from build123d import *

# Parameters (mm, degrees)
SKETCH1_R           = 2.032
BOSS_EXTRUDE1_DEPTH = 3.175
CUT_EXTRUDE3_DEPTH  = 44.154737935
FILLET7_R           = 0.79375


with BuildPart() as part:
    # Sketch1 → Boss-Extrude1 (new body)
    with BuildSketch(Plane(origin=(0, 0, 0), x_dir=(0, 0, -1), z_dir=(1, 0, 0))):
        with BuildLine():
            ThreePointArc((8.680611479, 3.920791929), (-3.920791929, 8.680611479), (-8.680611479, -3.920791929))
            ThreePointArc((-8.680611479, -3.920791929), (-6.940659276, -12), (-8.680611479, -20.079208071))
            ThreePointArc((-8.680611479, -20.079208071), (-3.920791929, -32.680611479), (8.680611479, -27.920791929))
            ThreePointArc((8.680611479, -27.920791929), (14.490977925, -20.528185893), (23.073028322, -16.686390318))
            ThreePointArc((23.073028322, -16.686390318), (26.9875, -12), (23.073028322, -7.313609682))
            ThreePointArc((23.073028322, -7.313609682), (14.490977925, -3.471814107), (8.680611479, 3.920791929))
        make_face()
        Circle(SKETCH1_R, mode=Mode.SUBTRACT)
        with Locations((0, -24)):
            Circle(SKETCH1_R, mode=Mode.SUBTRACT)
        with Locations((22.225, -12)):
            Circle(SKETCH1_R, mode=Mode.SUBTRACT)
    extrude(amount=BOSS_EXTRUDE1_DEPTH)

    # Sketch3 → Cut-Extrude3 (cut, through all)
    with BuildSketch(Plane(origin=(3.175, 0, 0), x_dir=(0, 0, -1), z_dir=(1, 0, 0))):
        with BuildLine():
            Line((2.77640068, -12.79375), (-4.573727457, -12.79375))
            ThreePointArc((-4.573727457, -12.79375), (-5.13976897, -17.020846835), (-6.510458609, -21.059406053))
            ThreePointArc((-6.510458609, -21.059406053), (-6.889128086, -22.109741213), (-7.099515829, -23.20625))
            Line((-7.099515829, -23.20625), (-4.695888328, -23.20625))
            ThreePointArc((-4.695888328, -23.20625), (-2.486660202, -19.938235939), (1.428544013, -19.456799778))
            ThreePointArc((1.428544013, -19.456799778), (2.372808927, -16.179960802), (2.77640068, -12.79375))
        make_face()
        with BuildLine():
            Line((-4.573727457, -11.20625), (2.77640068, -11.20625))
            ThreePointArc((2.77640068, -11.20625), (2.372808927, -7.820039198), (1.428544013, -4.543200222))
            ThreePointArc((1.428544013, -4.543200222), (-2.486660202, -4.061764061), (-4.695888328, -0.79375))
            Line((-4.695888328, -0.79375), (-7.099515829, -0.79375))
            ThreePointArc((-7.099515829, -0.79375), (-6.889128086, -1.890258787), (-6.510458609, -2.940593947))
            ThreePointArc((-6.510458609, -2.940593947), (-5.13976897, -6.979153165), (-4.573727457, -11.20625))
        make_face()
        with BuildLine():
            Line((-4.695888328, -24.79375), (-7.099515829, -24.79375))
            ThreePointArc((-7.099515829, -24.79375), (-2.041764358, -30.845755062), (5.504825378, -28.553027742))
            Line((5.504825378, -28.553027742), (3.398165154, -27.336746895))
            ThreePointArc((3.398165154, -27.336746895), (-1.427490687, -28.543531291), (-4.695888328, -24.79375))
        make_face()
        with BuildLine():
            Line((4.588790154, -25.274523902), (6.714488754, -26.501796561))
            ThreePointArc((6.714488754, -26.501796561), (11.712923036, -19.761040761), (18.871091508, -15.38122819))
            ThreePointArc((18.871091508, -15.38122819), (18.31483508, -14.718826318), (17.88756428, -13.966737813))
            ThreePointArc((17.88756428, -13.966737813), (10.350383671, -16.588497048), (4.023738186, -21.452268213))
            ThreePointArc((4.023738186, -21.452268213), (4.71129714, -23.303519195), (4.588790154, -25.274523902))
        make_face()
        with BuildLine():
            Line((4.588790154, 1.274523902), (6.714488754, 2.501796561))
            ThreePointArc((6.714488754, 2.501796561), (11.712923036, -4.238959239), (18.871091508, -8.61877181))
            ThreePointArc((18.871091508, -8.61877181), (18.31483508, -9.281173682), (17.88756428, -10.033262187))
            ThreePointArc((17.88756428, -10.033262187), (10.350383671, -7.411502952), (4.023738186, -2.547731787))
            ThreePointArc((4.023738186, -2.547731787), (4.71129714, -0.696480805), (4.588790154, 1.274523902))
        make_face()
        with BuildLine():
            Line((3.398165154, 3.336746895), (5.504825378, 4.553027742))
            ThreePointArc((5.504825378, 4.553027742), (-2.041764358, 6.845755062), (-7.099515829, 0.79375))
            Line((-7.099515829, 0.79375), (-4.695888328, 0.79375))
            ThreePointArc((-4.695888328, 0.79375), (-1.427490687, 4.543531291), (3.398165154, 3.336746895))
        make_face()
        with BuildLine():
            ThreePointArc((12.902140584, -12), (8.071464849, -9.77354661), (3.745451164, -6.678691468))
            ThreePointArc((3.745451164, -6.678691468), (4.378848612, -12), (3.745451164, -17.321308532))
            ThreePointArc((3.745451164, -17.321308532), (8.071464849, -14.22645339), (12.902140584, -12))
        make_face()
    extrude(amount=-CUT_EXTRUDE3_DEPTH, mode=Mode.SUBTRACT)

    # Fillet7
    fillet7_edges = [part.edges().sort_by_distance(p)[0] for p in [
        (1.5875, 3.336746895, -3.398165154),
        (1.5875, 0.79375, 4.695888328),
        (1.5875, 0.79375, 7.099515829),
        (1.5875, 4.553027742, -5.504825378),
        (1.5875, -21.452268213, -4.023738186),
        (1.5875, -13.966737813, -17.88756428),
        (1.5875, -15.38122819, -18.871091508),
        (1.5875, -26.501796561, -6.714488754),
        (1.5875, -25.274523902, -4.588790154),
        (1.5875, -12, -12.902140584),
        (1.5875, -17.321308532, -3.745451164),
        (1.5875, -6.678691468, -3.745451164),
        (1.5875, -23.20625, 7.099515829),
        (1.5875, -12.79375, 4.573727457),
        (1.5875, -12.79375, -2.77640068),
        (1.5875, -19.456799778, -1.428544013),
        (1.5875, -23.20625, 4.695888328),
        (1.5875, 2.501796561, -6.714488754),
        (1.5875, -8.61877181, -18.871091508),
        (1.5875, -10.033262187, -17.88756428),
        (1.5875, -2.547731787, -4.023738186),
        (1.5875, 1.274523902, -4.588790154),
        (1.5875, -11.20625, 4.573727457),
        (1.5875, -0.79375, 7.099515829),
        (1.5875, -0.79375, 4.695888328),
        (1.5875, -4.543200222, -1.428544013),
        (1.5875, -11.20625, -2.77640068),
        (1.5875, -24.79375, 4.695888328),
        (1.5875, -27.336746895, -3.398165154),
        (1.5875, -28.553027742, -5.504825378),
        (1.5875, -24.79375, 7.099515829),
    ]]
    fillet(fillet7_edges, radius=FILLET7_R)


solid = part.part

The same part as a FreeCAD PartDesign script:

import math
import FreeCAD as App
import Part
import Sketcher

V = App.Vector
Q = App.Units.Quantity


def edges_at(feature, points):
    """Names of the edges that pass closest to the given points."""
    edges = feature.Shape.Edges
    near = lambda p: min(range(len(edges)), key=lambda i: edges[i].distToShape(Part.Vertex(*p))[0])
    return sorted({f"Edge{near(p) + 1}" for p in points})

doc = App.newDocument("Part")
body = doc.addObject("PartDesign::Body", "Body")

# Sketch on YZ plane
sketch1 = body.newObject("Sketcher::SketchObject", "Sketch")
sketch1.AttachmentSupport = (doc.getObject("YZ_Plane"), [""])
sketch1.MapMode = "FlatFace"
sketch1.addGeometry([
    Part.ArcOfCircle(Part.Circle(V(0, 0, 0), V(0, 0, 1), 9.5), math.radians(-66), math.radians(114)),  # 0
    Part.ArcOfCircle(Part.Circle(V(-12, 26.6, 0), V(0, 0, 1), 19.6), math.radians(-114), math.radians(-66)),  # 1
    Part.ArcOfCircle(Part.Circle(V(-24, 0, 0), V(0, 0, 1), 9.5), math.radians(66), math.radians(246)),  # 2
    Part.ArcOfCircle(Part.Circle(V(-36, -26.6, 0), V(0, 0, 1), 19.6), math.radians(10), math.radians(66)),  # 3
    Part.ArcOfCircle(Part.Circle(V(-12, -22.2, 0), V(0, 0, 1), 4.8), math.radians(-170), math.radians(-10)),  # 4
    Part.ArcOfCircle(Part.Circle(V(12, -26.6, 0), V(0, 0, 1), 19.6), math.radians(114), math.radians(170)),  # 5
    Part.Circle(V(-24, 0, 0), V(0, 0, 1), 2),  # 6
    Part.Circle(V(0, 0, 0), V(0, 0, 1), 2),  # 7
    Part.Circle(V(-12, -22.2, 0), V(0, 0, 1), 2),  # 8
], False)
sketch1.addConstraint([
    Sketcher.Constraint("Tangent", 0, 2, 1, 2),
    Sketcher.Constraint("Tangent", 1, 1, 2, 1),
    Sketcher.Constraint("Tangent", 2, 2, 3, 2),
    Sketcher.Constraint("Tangent", 3, 1, 4, 1),
    Sketcher.Constraint("Tangent", 4, 2, 5, 2),
    Sketcher.Constraint("Tangent", 5, 1, 0, 1),
    Sketcher.Constraint("Coincident", 0, 3, -1, 1),
    Sketcher.Constraint("Coincident", 7, 3, -1, 1),
    Sketcher.Constraint("Coincident", 6, 3, 2, 3),
    Sketcher.Constraint("Coincident", 8, 3, 4, 3),
    Sketcher.Constraint("Equal", 0, 2),
    Sketcher.Constraint("Equal", 1, 3),
    Sketcher.Constraint("Equal", 3, 5),
    Sketcher.Constraint("Equal", 6, 7),
    Sketcher.Constraint("Equal", 7, 8),
    Sketcher.Constraint("PointOnObject", 2, 3, -1),
    Sketcher.Constraint("Horizontal", 3, 3, 5, 3),
    Sketcher.Constraint("Diameter", 6, Q("0.16 in")),
    Sketcher.Constraint("Radius", 0, Q("0.375 in")),
    Sketcher.Constraint("Radius", 4, Q("0.1875 in")),
    Sketcher.Constraint("DistanceY", 4, 3, -1, 1, Q("0.875 in")),
    Sketcher.Constraint("Radius", 1, 19.627274),
    Sketcher.Constraint("DistanceX", 1, 3, -1, 1, 12.0),
])
pad1 = body.newObject("PartDesign::Pad", "Pad")
pad1.Profile = sketch1
pad1.Length = Q("0.125 in")

# Sketch on YZ plane
sketch2 = body.newObject("Sketcher::SketchObject", "Sketch001")
sketch2.AttachmentSupport = (doc.getObject("YZ_Plane"), [""])
sketch2.MapMode = "FlatFace"
sketch2.AttachmentOffset = App.Placement(V(0, 0, 0.125 * 25.4), App.Rotation())
sketch2.addGeometry([
    Part.LineSegment(V(-12.8, -2.8, 0), V(-12.8, 4.6, 0)),  # 0
    Part.ArcOfCircle(Part.Circle(V(-12, 26.6, 0), V(0, 0, 1), 22), math.radians(-114), math.radians(-92)),  # 1
    Part.ArcOfCircle(Part.Circle(V(-24, 0, 0), V(0, 0, 1), 7.1), math.radians(65.69), math.radians(83.62)),  # 2
    Part.LineSegment(V(-23.2, 7.1, 0), V(-23.2, 4.7, 0)),  # 3
    Part.ArcOfCircle(Part.Circle(V(-24, 0, 0), V(0, 0, 1), 4.8), math.radians(-17), math.radians(80)),  # 4
    Part.ArcOfCircle(Part.Circle(V(-12, 18.3, 0), V(0, 0, 1), 21.1), math.radians(-110.71), math.radians(-92.16)),  # 5
    Part.LineSegment(V(-11.2, 4.6, 0), V(-11.2, -2.8, 0)),  # 6
    Part.ArcOfCircle(Part.Circle(V(-12, 18.3, 0), V(0, 0, 1), 21.1), math.radians(-87.84), math.radians(-69.29)),  # 7
    Part.ArcOfCircle(Part.Circle(V(0, 0, 0), V(0, 0, 1), 4.8), math.radians(100), math.radians(197)),  # 8
    Part.LineSegment(V(-0.8, 4.7, 0), V(-0.8, 7.1, 0)),  # 9
    Part.ArcOfCircle(Part.Circle(V(0, 0, 0), V(0, 0, 1), 7.1), math.radians(96.38), math.radians(114.31)),  # 10
    Part.ArcOfCircle(Part.Circle(V(-12, 26.6, 0), V(0, 0, 1), 22), math.radians(-88), math.radians(-66)),  # 11
    Part.LineSegment(V(-24.8, 4.7, 0), V(-24.8, 7.1, 0)),  # 12
    Part.ArcOfCircle(Part.Circle(V(-24, 0, 0), V(0, 0, 1), 7.1), math.radians(96), math.radians(230)),  # 13
    Part.LineSegment(V(-28.6, -5.5, 0), V(-27.3, -3.4, 0)),  # 14
    Part.ArcOfCircle(Part.Circle(V(-24, 0, 0), V(0, 0, 1), 4.8), math.radians(100), math.radians(226)),  # 15
    Part.LineSegment(V(-25.3, -4.6, 0), V(-26.5, -6.7, 0)),  # 16
    Part.ArcOfCircle(Part.Circle(V(-36, -26.6, 0), V(0, 0, 1), 22), math.radians(20), math.radians(64)),  # 17
    Part.ArcOfCircle(Part.Circle(V(-12, -22.2, 0), V(0, 0, 1), 4.8), math.radians(114), math.radians(135)),  # 18
    Part.ArcOfCircle(Part.Circle(V(-38.6, -22.2, 0), V(0, 0, 1), 25), math.radians(10), math.radians(47)),  # 19
    Part.ArcOfCircle(Part.Circle(V(-24, 0, 0), V(0, 0, 1), 4.8), math.radians(-106), math.radians(-58)),  # 20
    Part.LineSegment(V(2.5, -6.7, 0), V(1.3, -4.6, 0)),  # 21
    Part.ArcOfCircle(Part.Circle(V(0, 0, 0), V(0, 0, 1), 4.8), math.radians(-122), math.radians(-74)),  # 22
    Part.ArcOfCircle(Part.Circle(V(14.6, -22.2, 0), V(0, 0, 1), 25), math.radians(133), math.radians(170)),  # 23
    Part.ArcOfCircle(Part.Circle(V(-12, -22.2, 0), V(0, 0, 1), 4.8), math.radians(45), math.radians(66)),  # 24
    Part.ArcOfCircle(Part.Circle(V(12, -26.6, 0), V(0, 0, 1), 22), math.radians(116), math.radians(160)),  # 25
    Part.LineSegment(V(3.3, -3.4, 0), V(4.6, -5.5, 0)),  # 26
    Part.ArcOfCircle(Part.Circle(V(0, 0, 0), V(0, 0, 1), 7.1), math.radians(-50), math.radians(84)),  # 27
    Part.LineSegment(V(0.8, 7.1, 0), V(0.8, 4.7, 0)),  # 28
    Part.ArcOfCircle(Part.Circle(V(0, 0, 0), V(0, 0, 1), 4.8), math.radians(-46), math.radians(80)),  # 29
    Part.ArcOfCircle(Part.Circle(V(14.6, -22.2, 0), V(0, 0, 1), 28.2), math.radians(139), math.radians(161)),  # 30
    Part.ArcOfCircle(Part.Circle(V(-12, 18.3, 0), V(0, 0, 1), 22.7), math.radians(-104), math.radians(-76)),  # 31
    Part.ArcOfCircle(Part.Circle(V(-38.6, -22.2, 0), V(0, 0, 1), 28.2), math.radians(19), math.radians(41)),  # 32
], False)
sketch2.addConstraint([
    Sketcher.Constraint("Coincident", 0, 2, 1, 2),
    Sketcher.Constraint("Tangent", 1, 1, 2, 1),
    Sketcher.Constraint("Coincident", 2, 2, 3, 1),
    Sketcher.Constraint("Coincident", 3, 2, 4, 2),
    Sketcher.Constraint("Coincident", 4, 1, 5, 1),
    Sketcher.Constraint("Coincident", 5, 2, 0, 1),
    Sketcher.Constraint("Coincident", 6, 2, 7, 1),
    Sketcher.Constraint("Coincident", 7, 2, 8, 2),
    Sketcher.Constraint("Coincident", 8, 1, 9, 1),
    Sketcher.Constraint("Coincident", 9, 2, 10, 1),
    Sketcher.Constraint("Tangent", 10, 2, 11, 2),
    Sketcher.Constraint("Coincident", 11, 1, 6, 1),
    Sketcher.Constraint("Coincident", 12, 2, 13, 1),
    Sketcher.Constraint("Coincident", 13, 2, 14, 1),
    Sketcher.Constraint("Coincident", 14, 2, 15, 2),
    Sketcher.Constraint("Coincident", 15, 1, 12, 1),
    Sketcher.Constraint("Coincident", 16, 2, 17, 2),
    Sketcher.Constraint("Coincident", 17, 1, 18, 2),
    Sketcher.Constraint("Coincident", 18, 1, 19, 1),
    Sketcher.Constraint("Coincident", 19, 2, 20, 2),
    Sketcher.Constraint("Coincident", 20, 1, 16, 1),
    Sketcher.Constraint("Coincident", 21, 2, 22, 2),
    Sketcher.Constraint("Coincident", 22, 1, 23, 1),
    Sketcher.Constraint("Coincident", 23, 2, 24, 2),
    Sketcher.Constraint("Coincident", 24, 1, 25, 2),
    Sketcher.Constraint("Coincident", 25, 1, 21, 1),
    Sketcher.Constraint("Coincident", 26, 2, 27, 1),
    Sketcher.Constraint("Coincident", 27, 2, 28, 1),
    Sketcher.Constraint("Coincident", 28, 2, 29, 2),
    Sketcher.Constraint("Coincident", 29, 1, 26, 1),
    Sketcher.Constraint("Coincident", 30, 1, 31, 2),
    Sketcher.Constraint("Coincident", 31, 1, 32, 2),
    Sketcher.Constraint("Coincident", 32, 1, 30, 2),
    Sketcher.Constraint("Vertical", 0),
    Sketcher.Constraint("Vertical", 3),
    Sketcher.Constraint("Vertical", 6),
    Sketcher.Constraint("Vertical", 9),
    Sketcher.Constraint("Vertical", 12),
    Sketcher.Constraint("Vertical", 28),
    Sketcher.Constraint("Coincident", 8, 3, -1, 1),
    Sketcher.Constraint("Coincident", 10, 3, -1, 1),
    Sketcher.Constraint("Coincident", 22, 3, -1, 1),
    Sketcher.Constraint("Coincident", 27, 3, -1, 1),
    Sketcher.Constraint("Coincident", 29, 3, -1, 1),
    Sketcher.Constraint("Coincident", 4, 3, 2, 3),
    Sketcher.Constraint("Coincident", 7, 3, 5, 3),
    Sketcher.Constraint("Coincident", 11, 3, 1, 3),
    Sketcher.Constraint("Coincident", 13, 3, 2, 3),
    Sketcher.Constraint("Coincident", 15, 3, 2, 3),
    Sketcher.Constraint("Coincident", 20, 3, 2, 3),
    Sketcher.Constraint("Coincident", 24, 3, 18, 3),
    Sketcher.Constraint("Coincident", 30, 3, 23, 3),
    Sketcher.Constraint("Coincident", 31, 3, 5, 3),
    Sketcher.Constraint("Coincident", 32, 3, 19, 3),
    Sketcher.Constraint("Equal", 5, 7),
    Sketcher.Constraint("Equal", 4, 8),
    Sketcher.Constraint("Equal", 2, 10),
    Sketcher.Constraint("Equal", 1, 11),
    Sketcher.Constraint("Equal", 10, 13),
    Sketcher.Constraint("Equal", 8, 15),
    Sketcher.Constraint("Equal", 11, 17),
    Sketcher.Constraint("Equal", 15, 18),
    Sketcher.Constraint("Equal", 18, 20),
    Sketcher.Constraint("Equal", 20, 22),
    Sketcher.Constraint("Equal", 19, 23),
    Sketcher.Constraint("Equal", 22, 24),
    Sketcher.Constraint("Equal", 17, 25),
    Sketcher.Constraint("Equal", 13, 27),
    Sketcher.Constraint("Equal", 24, 29),
    Sketcher.Constraint("Equal", 30, 32),
    Sketcher.Constraint("Symmetric", 1, 3, 25, 3, -1, 1),
    Sketcher.Constraint("PointOnObject", 2, 3, -1),
    Sketcher.Constraint("Parallel", 14, 16),
    Sketcher.Constraint("Parallel", 21, 26),
    Sketcher.Constraint("Horizontal", 18, 3, 19, 3),
    Sketcher.Constraint("Horizontal", 19, 3, 23, 3),
    Sketcher.Constraint("Horizontal", 17, 3, 25, 3),
    Sketcher.Constraint("Horizontal", 5, 2, 6, 2),
    Sketcher.Constraint("Horizontal", 4, 1, 7, 2),
    Sketcher.Constraint("Horizontal", 3, 2, 8, 1),
    Sketcher.Constraint("Horizontal", 9, 2, 12, 2),
    Sketcher.Constraint("Horizontal", 20, 1, 21, 2),
    Sketcher.Constraint("Horizontal", 19, 2, 22, 1),
    Sketcher.Constraint("Horizontal", 18, 1, 23, 2),
    Sketcher.Constraint("Horizontal", 17, 1, 24, 1),
    Sketcher.Constraint("Horizontal", 16, 2, 25, 1),
    Sketcher.Constraint("Horizontal", 13, 2, 26, 2),
    Sketcher.Constraint("Horizontal", 12, 2, 27, 2),
    Sketcher.Constraint("Angle", 14, Q("60 deg")),
    Sketcher.Constraint("Radius", 2, Q("0.28125 in")),
    Sketcher.Constraint("Radius", 4, Q("0.1875 in")),
    Sketcher.Constraint("DistanceY", 18, 3, -1, 1, Q("0.875 in")),
    Sketcher.Constraint("DistanceX", 8, 1, -1, 1, Q("0.03125 in")),
    Sketcher.Constraint("Radius", 5, 21.081929),
    Sketcher.Constraint("Radius", 31, 22.669429),
    Sketcher.Constraint("DistanceX", 5, 2, 6, 2, Q("0.0625 in")),
    Sketcher.Constraint("DistanceY", 20, 1, 14, 2, Q("0.046875 in")),
    Sketcher.Constraint("Radius", 1, 22.008524),
    Sketcher.Constraint("Radius", 19, 24.993776),
    Sketcher.Constraint("Radius", 30, 28.168776),
    Sketcher.Constraint("DistanceY", 0, 1, 0, 2, 7.350128),
    Sketcher.Constraint("DistanceX", 1, 3, -1, 1, 12.0),
    Sketcher.Constraint("DistanceY", 16, 2, 20, 1, 2.125699),
    Sketcher.Constraint("DistanceX", 19, 2, -1, 1, 21.452268),
])
pocket1 = body.newObject("PartDesign::Pocket", "Pocket")
pocket1.Profile = sketch2
pocket1.Type = "ThroughAll"
doc.recompute()

fillet = body.newObject("PartDesign::Fillet", "Fillet")
fillet.Base = (pocket1, edges_at(pocket1, [
    (1.587, 3.337, -3.398),
    (1.587, 0.794, 4.696),
    (1.587, 0.794, 7.1),
    (1.587, 4.553, -5.505),
    (1.587, -21.452, -4.024),
    (1.587, -13.967, -17.888),
    (1.587, -15.381, -18.871),
    (1.587, -26.502, -6.714),
    (1.587, -25.275, -4.589),
    (1.587, -12, -12.902),
    (1.587, -17.321, -3.745),
    (1.587, -6.679, -3.745),
    (1.587, -23.206, 7.1),
    (1.587, -12.794, 4.574),
    (1.587, -12.794, -2.776),
    (1.587, -19.457, -1.429),
    (1.587, -23.206, 4.696),
    (1.587, 2.502, -6.714),
    (1.587, -8.619, -18.871),
    (1.587, -10.033, -17.888),
    (1.587, -2.548, -4.024),
    (1.587, 1.275, -4.589),
    (1.587, -11.206, 4.574),
    (1.587, -0.794, 7.1),
    (1.587, -0.794, 4.696),
    (1.587, -4.543, -1.429),
    (1.587, -11.206, -2.776),
    (1.587, -24.794, 4.696),
    (1.587, -27.337, -3.398),
    (1.587, -28.553, -5.505),
    (1.587, -24.794, 7.1),
]))
fillet.Radius = Q("0.03125 in")

doc.recompute()
